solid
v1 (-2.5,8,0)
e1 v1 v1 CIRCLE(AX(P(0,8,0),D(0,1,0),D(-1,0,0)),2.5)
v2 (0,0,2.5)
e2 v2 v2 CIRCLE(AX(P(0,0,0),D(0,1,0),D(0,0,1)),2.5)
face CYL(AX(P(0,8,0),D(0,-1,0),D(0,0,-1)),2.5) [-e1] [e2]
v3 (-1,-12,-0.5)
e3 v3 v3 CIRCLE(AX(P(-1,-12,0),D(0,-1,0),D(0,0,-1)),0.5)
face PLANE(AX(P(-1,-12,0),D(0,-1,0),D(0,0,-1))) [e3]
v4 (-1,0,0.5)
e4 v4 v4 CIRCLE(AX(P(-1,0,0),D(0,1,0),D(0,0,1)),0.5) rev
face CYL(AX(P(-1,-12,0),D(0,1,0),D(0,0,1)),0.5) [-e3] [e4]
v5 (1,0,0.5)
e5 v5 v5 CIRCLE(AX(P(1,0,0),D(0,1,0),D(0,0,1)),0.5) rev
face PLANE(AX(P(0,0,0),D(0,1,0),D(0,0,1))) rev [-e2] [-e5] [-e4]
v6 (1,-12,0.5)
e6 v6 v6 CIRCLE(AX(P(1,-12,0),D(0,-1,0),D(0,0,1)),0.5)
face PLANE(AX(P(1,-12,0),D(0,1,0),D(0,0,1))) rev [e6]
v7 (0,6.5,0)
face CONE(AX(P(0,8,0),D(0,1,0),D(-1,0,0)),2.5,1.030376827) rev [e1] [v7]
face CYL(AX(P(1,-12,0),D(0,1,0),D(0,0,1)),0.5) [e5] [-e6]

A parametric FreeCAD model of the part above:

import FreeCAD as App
import Part
import Sketcher
from FreeCAD import Vector

doc = App.newDocument("Part")
body = doc.addObject("PartDesign::Body", "Body")

# Sketch on XZ plane
sketch1 = doc.addObject("Sketcher::SketchObject", "Sketch")
body.addObject(sketch1)
sketch1.AttachmentSupport = (doc.XZ_Plane, [""])
sketch1.MapMode = "FlatFace"
sketch1.addGeometry(Part.Circle(Vector(0, 0, 0), Vector(0, 0, 1), 2.5), False)
sketch1.addConstraint(Sketcher.Constraint("Coincident", 0, 3, -1, 1))
sketch1.addConstraint(Sketcher.Constraint("Diameter", 0, 5.0))
pad1 = doc.addObject("PartDesign::Pad", "Pad")
body.addObject(pad1)
pad1.Profile = sketch1
pad1.Length = 8
pad1.Reversed = True

# Sketch on XY plane
sketch2 = doc.addObject("Sketcher::SketchObject", "Sketch001")
body.addObject(sketch2)
sketch2.AttachmentSupport = (doc.XY_Plane, [""])
sketch2.MapMode = "FlatFace"
sketch2.addGeometry(Part.LineSegment(Vector(0, 6.5, 0), Vector(0, 8, 0)), False)
sketch2.addGeometry(Part.LineSegment(Vector(0, 8, 0), Vector(-2.5, 8, 0)), False)
sketch2.addGeometry(Part.LineSegment(Vector(-2.5, 8, 0), Vector(0, 6.5, 0)), False)
sketch2.addConstraint(Sketcher.Constraint("Coincident", 0, 2, 1, 1))
sketch2.addConstraint(Sketcher.Constraint("Coincident", 1, 2, 2, 1))
sketch2.addConstraint(Sketcher.Constraint("Coincident", 2, 2, 0, 1))
sketch2.addConstraint(Sketcher.Constraint("Vertical", 0))
sketch2.addConstraint(Sketcher.Constraint("Horizontal", 1))
sketch2.addConstraint(Sketcher.Constraint("PointOnObject", 0, 2, -2))
sketch2.addConstraint(Sketcher.Constraint("DistanceX", 1, 2, 1, 1, 2.5))
sketch2.addConstraint(Sketcher.Constraint("DistanceY", 0, 1, 0, 2, 1.5))
sketch2.addConstraint(Sketcher.Constraint("DistanceY", -1, 1, 0, 2, 8.0))
groove = doc.addObject("PartDesign::Groove", "Groove")
body.addObject(groove)
groove.Profile = sketch2
groove.ReferenceAxis = (sketch2, ["V_Axis"])
groove.Angle = 360

# Sketch on XZ plane
sketch3 = doc.addObject("Sketcher::SketchObject", "Sketch002")
body.addObject(sketch3)
sketch3.AttachmentSupport = (doc.XZ_Plane, [""])
sketch3.MapMode = "FlatFace"
sketch3.addGeometry(Part.Circle(Vector(-1, 0, 0), Vector(0, 0, 1), 0.5), False)
sketch3.addGeometry(Part.Circle(Vector(1, 0, 0), Vector(0, 0, 1), 0.5), False)
sketch3.addConstraint(Sketcher.Constraint("Equal", 0, 1))
sketch3.addConstraint(Sketcher.Constraint("Symmetric", 0, 3, 1, 3, -1, 1))
sketch3.addConstraint(Sketcher.Constraint("PointOnObject", 0, 3, -1))
sketch3.addConstraint(Sketcher.Constraint("Diameter", 0, 1.0))
sketch3.addConstraint(Sketcher.Constraint("DistanceX", 0, 3, -1, 1, 1.0))
pad2 = doc.addObject("PartDesign::Pad", "Pad001")
body.addObject(pad2)
pad2.Profile = sketch3
pad2.Length = 12

doc.recompute()
